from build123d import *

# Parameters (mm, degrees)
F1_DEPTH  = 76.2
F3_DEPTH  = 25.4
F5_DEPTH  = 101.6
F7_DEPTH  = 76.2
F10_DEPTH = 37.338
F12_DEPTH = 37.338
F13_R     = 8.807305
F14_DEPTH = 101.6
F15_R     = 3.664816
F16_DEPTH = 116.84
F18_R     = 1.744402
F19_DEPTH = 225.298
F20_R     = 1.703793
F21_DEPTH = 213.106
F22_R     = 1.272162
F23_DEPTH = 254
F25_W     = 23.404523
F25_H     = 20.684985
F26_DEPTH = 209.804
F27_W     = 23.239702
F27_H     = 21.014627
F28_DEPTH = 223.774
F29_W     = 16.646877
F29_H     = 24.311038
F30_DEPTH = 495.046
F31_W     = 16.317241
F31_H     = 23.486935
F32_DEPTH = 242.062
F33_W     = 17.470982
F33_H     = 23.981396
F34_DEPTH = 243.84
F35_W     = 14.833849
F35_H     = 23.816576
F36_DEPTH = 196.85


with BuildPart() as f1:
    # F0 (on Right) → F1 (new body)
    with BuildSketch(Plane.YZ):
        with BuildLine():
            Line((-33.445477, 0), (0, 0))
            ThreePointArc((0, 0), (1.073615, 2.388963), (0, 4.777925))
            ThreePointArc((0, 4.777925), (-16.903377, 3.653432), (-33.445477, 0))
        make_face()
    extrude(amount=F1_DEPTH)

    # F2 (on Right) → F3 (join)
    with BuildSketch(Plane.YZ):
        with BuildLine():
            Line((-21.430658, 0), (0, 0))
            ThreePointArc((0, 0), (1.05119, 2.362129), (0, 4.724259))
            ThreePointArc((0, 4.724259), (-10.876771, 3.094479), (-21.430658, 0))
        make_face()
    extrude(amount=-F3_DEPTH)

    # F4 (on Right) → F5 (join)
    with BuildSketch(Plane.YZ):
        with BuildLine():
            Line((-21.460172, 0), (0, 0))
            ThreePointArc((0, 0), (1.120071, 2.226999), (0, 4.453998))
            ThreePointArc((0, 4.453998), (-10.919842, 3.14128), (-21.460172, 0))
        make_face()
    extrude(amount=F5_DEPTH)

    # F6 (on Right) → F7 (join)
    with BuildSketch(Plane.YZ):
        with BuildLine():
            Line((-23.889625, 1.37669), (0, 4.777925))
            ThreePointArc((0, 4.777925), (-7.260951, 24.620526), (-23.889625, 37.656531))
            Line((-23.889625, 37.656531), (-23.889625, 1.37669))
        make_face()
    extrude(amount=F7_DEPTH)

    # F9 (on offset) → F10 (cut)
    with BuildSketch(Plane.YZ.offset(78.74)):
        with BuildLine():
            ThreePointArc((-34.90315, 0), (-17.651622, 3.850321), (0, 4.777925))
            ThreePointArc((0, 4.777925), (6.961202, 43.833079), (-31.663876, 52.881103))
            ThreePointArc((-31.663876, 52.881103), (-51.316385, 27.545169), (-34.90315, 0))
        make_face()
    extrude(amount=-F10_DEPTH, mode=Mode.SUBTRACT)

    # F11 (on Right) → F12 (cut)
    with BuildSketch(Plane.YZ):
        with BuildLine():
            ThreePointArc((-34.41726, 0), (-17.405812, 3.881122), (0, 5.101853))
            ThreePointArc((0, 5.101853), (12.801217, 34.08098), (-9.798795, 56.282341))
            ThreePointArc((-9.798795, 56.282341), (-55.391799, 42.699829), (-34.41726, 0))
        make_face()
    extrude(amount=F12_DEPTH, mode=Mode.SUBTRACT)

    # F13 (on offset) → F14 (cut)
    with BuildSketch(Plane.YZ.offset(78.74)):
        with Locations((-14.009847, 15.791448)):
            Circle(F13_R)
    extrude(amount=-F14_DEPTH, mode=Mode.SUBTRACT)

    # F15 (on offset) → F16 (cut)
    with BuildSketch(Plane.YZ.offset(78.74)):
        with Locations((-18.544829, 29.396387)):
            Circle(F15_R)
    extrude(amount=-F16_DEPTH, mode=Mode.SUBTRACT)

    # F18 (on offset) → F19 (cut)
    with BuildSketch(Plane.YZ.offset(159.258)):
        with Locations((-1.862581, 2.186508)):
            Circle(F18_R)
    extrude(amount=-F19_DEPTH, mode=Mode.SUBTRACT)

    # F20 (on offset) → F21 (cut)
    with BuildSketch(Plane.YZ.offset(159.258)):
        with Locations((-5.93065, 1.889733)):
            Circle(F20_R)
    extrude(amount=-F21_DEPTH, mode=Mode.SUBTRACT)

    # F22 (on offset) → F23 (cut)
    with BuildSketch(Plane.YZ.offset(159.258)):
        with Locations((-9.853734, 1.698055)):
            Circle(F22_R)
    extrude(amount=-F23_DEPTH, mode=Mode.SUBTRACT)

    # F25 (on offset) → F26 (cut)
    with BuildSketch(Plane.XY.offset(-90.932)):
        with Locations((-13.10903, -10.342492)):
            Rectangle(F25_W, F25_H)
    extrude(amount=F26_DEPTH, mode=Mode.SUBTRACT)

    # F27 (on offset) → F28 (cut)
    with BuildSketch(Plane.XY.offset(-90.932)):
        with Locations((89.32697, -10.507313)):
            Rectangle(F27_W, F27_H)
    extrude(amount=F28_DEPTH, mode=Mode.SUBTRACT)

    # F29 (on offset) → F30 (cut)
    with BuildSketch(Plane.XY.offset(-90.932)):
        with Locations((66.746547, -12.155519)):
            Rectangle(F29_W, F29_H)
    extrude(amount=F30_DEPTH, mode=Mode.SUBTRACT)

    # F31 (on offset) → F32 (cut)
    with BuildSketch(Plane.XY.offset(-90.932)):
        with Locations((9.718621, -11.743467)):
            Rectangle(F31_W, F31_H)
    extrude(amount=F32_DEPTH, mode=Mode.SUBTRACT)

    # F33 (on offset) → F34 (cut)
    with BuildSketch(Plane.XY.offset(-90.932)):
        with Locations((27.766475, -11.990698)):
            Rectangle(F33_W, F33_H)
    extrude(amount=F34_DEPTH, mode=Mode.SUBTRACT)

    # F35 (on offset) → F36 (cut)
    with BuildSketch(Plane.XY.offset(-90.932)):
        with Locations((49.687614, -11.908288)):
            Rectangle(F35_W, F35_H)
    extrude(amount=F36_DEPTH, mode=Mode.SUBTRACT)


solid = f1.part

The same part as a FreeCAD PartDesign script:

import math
import FreeCAD as App
import Part
import Sketcher
from FreeCAD import Vector
Q = App.Units.Quantity


def add_polygon(sketch, points):
    """Adds a closed chain of lines whose ends are joined by coincident constraints."""
    first, n = sketch.GeometryCount, len(points)
    for a, b in zip(points, points[1:] + points[:1]):
        sketch.addGeometry(Part.LineSegment(App.Vector(*a, 0), App.Vector(*b, 0)), False)
    for i in range(n):
        sketch.addConstraint(Sketcher.Constraint("Coincident", first + i, 2, first + (i + 1) % n, 1))

doc = App.newDocument("Part")
body = doc.addObject("PartDesign::Body", "Body")

# Sketch on YZ plane
sketch1 = body.newObject("Sketcher::SketchObject", "Sketch")
sketch1.AttachmentSupport = (doc.getObject("YZ_Plane"), [""])
sketch1.MapMode = "FlatFace"
sketch1.addGeometry([
    Part.LineSegment(Vector(-33.4, 0, 0), Vector(0, 0, 0)),
    Part.ArcOfCircle(Part.Circle(Vector(-2.1, 2.4, 0), Vector(0, 0, 1), 3.2), math.radians(-48), math.radians(48)),
    Part.ArcOfCircle(Part.Circle(Vector(-1, -107.6, 0), Vector(0, 0, 1), 112.3), math.radians(89.48), math.radians(106.78)),
], False)
sketch1.addConstraint([
    Sketcher.Constraint("Coincident", 0, 2, 1, 1),
    Sketcher.Constraint("Coincident", 1, 2, 2, 1),
    Sketcher.Constraint("Coincident", 2, 2, 0, 1),
    Sketcher.Constraint("Horizontal", 0),
    Sketcher.Constraint("Coincident", 0, 2, -1, 1),
    Sketcher.Constraint("PointOnObject", 1, 2, -2),
    Sketcher.Constraint("Radius", 1, Q("3.194716 mm")),
    Sketcher.Constraint("Radius", 2, Q("112.341285 mm")),
    Sketcher.Constraint("DistanceX", 1, 3, -1, 1, Q("2.121101 mm")),
    Sketcher.Constraint("DistanceX", 0, 1, 0, 2, Q("33.445477 mm")),
])
pad1 = body.newObject("PartDesign::Pad", "Pad")
pad1.Profile = sketch1
pad1.Length = Q("3 in")

# Sketch on YZ plane
sketch2 = body.newObject("Sketcher::SketchObject", "Sketch001")
sketch2.AttachmentSupport = (doc.getObject("YZ_Plane"), [""])
sketch2.MapMode = "FlatFace"
sketch2.addGeometry([
    Part.LineSegment(Vector(-21.4, 0, 0), Vector(0, 0, 0)),
    Part.ArcOfCircle(Part.Circle(Vector(-2.1, 2.4, 0), Vector(0, 0, 1), 3.2), math.radians(-48), math.radians(48)),
    Part.ArcOfCircle(Part.Circle(Vector(6.5, -75.7, 0), Vector(0, 0, 1), 80.6), math.radians(94.61), math.radians(110.25)),
], False)
sketch2.addConstraint([
    Sketcher.Constraint("Coincident", 0, 2, 1, 1),
    Sketcher.Constraint("Coincident", 1, 2, 2, 1),
    Sketcher.Constraint("Coincident", 2, 2, 0, 1),
    Sketcher.Constraint("Horizontal", 0),
    Sketcher.Constraint("Coincident", 0, 2, -1, 1),
    Sketcher.Constraint("PointOnObject", 1, 2, -2),
    Sketcher.Constraint("Radius", 2, Q("80.647439 mm")),
    Sketcher.Constraint("Radius", 1, Q("3.179566 mm")),
    Sketcher.Constraint("DistanceX", 0, 1, 0, 2, Q("21.430658 mm")),
    Sketcher.Constraint("DistanceY", -1, 1, 1, 3, Q("2.362129 mm")),
])
pad2 = body.newObject("PartDesign::Pad", "Pad001")
pad2.Profile = sketch2
pad2.Length = Q("1 in")
pad2.Reversed = True

# Sketch on YZ plane
sketch3 = body.newObject("Sketcher::SketchObject", "Sketch002")
sketch3.AttachmentSupport = (doc.getObject("YZ_Plane"), [""])
sketch3.MapMode = "FlatFace"
sketch3.addGeometry([
    Part.LineSegment(Vector(-21.5, 0, 0), Vector(0, 0, 0)),
    Part.ArcOfCircle(Part.Circle(Vector(-1.7, 2.2, 0), Vector(0, 0, 1), 2.8), math.radians(-53), math.radians(53)),
    Part.ArcOfCircle(Part.Circle(Vector(2.2, -60.3, 0), Vector(0, 0, 1), 64.8), math.radians(91.98), math.radians(111.47)),
], False)
sketch3.addConstraint([
    Sketcher.Constraint("Coincident", 0, 2, 1, 1),
    Sketcher.Constraint("Coincident", 1, 2, 2, 1),
    Sketcher.Constraint("Coincident", 2, 2, 0, 1),
    Sketcher.Constraint("Horizontal", 0),
    Sketcher.Constraint("Coincident", 0, 2, -1, 1),
    Sketcher.Constraint("PointOnObject", 1, 2, -2),
    Sketcher.Constraint("Radius", 1, Q("2.773969 mm")),
    Sketcher.Constraint("Radius", 2, Q("64.773356 mm")),
    Sketcher.Constraint("DistanceX", 0, 1, 0, 2, Q("21.460172 mm")),
    Sketcher.Constraint("DistanceY", -1, 1, 1, 3, Q("2.226999 mm")),
])
pad3 = body.newObject("PartDesign::Pad", "Pad002")
pad3.Profile = sketch3
pad3.Length = Q("4 in")

# Sketch on YZ plane
sketch4 = body.newObject("Sketcher::SketchObject", "Sketch003")
sketch4.AttachmentSupport = (doc.getObject("YZ_Plane"), [""])
sketch4.MapMode = "FlatFace"
sketch4.addGeometry([
    Part.LineSegment(Vector(-24, 1, 0), Vector(0, 5, 0)),
    Part.ArcOfCircle(Part.Circle(Vector(-38, 2, 0), Vector(0, 0, 1), 39), math.radians(4), math.radians(68)),
    Part.LineSegment(Vector(-24, 38, 0), Vector(-24, 1, 0)),
], False)
sketch4.addConstraint([
    Sketcher.Constraint("Coincident", 0, 2, 1, 1),
    Sketcher.Constraint("Coincident", 1, 2, 2, 1),
    Sketcher.Constraint("Coincident", 2, 2, 0, 1),
    Sketcher.Constraint("Vertical", 2),
    Sketcher.Constraint("PointOnObject", 0, 2, -2),
    Sketcher.Constraint("Radius", 1, Q("38.555345 mm")),
    Sketcher.Constraint("DistanceY", 2, 2, 2, 1, Q("36.279841 mm")),
    Sketcher.Constraint("DistanceY", -1, 1, 1, 3, Q("1.957071 mm")),
    Sketcher.Constraint("DistanceY", -1, 1, 1, 2, Q("37.656531 mm")),
    Sketcher.Constraint("Distance", 0, Q("24.130532 mm")),
])
pad4 = body.newObject("PartDesign::Pad", "Pad003")
pad4.Profile = sketch4
pad4.Length = Q("3 in")

# Sketch on YZ plane
sketch5 = body.newObject("Sketcher::SketchObject", "Sketch004")
sketch5.AttachmentSupport = (doc.getObject("YZ_Plane"), [""])
sketch5.MapMode = "FlatFace"
sketch5.AttachmentOffset = App.Placement(Vector(0, 0, 3.1 * 25.4), App.Rotation())
sketch5.addGeometry([
    Part.ArcOfCircle(Part.Circle(Vector(-3, -101, 0), Vector(0, 0, 1), 106), math.radians(88.22), math.radians(107.37)),
    Part.ArcOfCircle(Part.Circle(Vector(-17, 28, 0), Vector(0, 0, 1), 29), math.radians(-54), math.radians(120)),
    Part.ArcOfCircle(Part.Circle(Vector(-23, 26, 0), Vector(0, 0, 1), 28), math.radians(108), math.radians(245)),
], False)
sketch5.addConstraint([
    Sketcher.Constraint("Coincident", 0, 1, 1, 1),
    Sketcher.Constraint("Coincident", 1, 2, 2, 1),
    Sketcher.Constraint("Coincident", 2, 2, 0, 2),
    Sketcher.Constraint("PointOnObject", 0, 1, -2),
    Sketcher.Constraint("PointOnObject", 2, 2, -1),
    Sketcher.Constraint("Radius", 2, Q("28.453791 mm")),
    Sketcher.Constraint("Radius", 0, Q("105.912846 mm")),
    Sketcher.Constraint("Radius", 1, Q("28.836195 mm")),
    Sketcher.Constraint("DistanceY", 0, 3, -1, 1, Q("101.0839 mm")),
    Sketcher.Constraint("DistanceX", 2, 3, 1, 3, Q("5.7907 mm")),
    Sketcher.Constraint("DistanceX", 1, 2, 0, 3, Q("28.376798 mm")),
    Sketcher.Constraint("DistanceY", -1, 1, 2, 3, Q("25.805471 mm")),
])
pocket1 = body.newObject("PartDesign::Pocket", "Pocket")
pocket1.Profile = sketch5
pocket1.Length = Q("1.47 in")

# Sketch on YZ plane
sketch6 = body.newObject("Sketcher::SketchObject", "Sketch005")
sketch6.AttachmentSupport = (doc.getObject("YZ_Plane"), [""])
sketch6.MapMode = "FlatFace"
sketch6.addGeometry([
    Part.ArcOfCircle(Part.Circle(Vector(-1, -108, 0), Vector(0, 0, 1), 113), math.radians(89.59), math.radians(107.27)),
    Part.ArcOfCircle(Part.Circle(Vector(-15, 29, 0), Vector(0, 0, 1), 28), math.radians(-59), math.radians(80)),
    Part.ArcOfCircle(Part.Circle(Vector(-27, 30, 0), Vector(0, 0, 1), 31), math.radians(57), math.radians(256)),
], False)
sketch6.addConstraint([
    Sketcher.Constraint("Coincident", 0, 1, 1, 1),
    Sketcher.Constraint("Coincident", 1, 2, 2, 1),
    Sketcher.Constraint("Coincident", 2, 2, 0, 2),
    Sketcher.Constraint("PointOnObject", 0, 1, -2),
    Sketcher.Constraint("PointOnObject", 2, 2, -1),
    Sketcher.Constraint("Radius", 0, Q("113.202019 mm")),
    Sketcher.Constraint("Radius", 2, Q("31.149142 mm")),
    Sketcher.Constraint("Radius", 1, Q("27.845275 mm")),
    Sketcher.Constraint("DistanceY", 0, 3, -1, 1, Q("108.097292 mm")),
    Sketcher.Constraint("DistanceY", -1, 1, 2, 3, Q("30.216819 mm")),
    Sketcher.Constraint("DistanceY", -1, 1, 1, 2, Q("56.282341 mm")),
    Sketcher.Constraint("DistanceX", 2, 2, -1, 1, Q("34.41726 mm")),
])
pocket2 = body.newObject("PartDesign::Pocket", "Pocket001")
pocket2.Profile = sketch6
pocket2.Length = Q("1.47 in")
pocket2.Reversed = True

# Sketch on YZ plane
sketch7 = body.newObject("Sketcher::SketchObject", "Sketch006")
sketch7.AttachmentSupport = (doc.getObject("YZ_Plane"), [""])
sketch7.MapMode = "FlatFace"
sketch7.AttachmentOffset = App.Placement(Vector(0, 0, 3.1 * 25.4), App.Rotation())
sketch7.addGeometry(Part.Circle(Vector(-14, 16, 0), Vector(0, 0, 1), 9), False)
sketch7.addConstraint([
    Sketcher.Constraint("Diameter", 0, Q("17.61461 mm")),
    Sketcher.Constraint("DistanceY", -1, 1, 0, 3, Q("15.791448 mm")),
    Sketcher.Constraint("DistanceX", 0, 3, -1, 1, Q("14.009847 mm")),
])
pocket3 = body.newObject("PartDesign::Pocket", "Pocket002")
pocket3.Profile = sketch7
pocket3.Length = Q("4 in")

# Sketch on YZ plane
sketch8 = body.newObject("Sketcher::SketchObject", "Sketch007")
sketch8.AttachmentSupport = (doc.getObject("YZ_Plane"), [""])
sketch8.MapMode = "FlatFace"
sketch8.AttachmentOffset = App.Placement(Vector(0, 0, 3.1 * 25.4), App.Rotation())
sketch8.addGeometry(Part.Circle(Vector(-18.5, 29.4, 0), Vector(0, 0, 1), 3.7), False)
sketch8.addConstraint([
    Sketcher.Constraint("Diameter", 0, Q("7.329632 mm")),
    Sketcher.Constraint("DistanceX", 0, 3, -1, 1, Q("18.544829 mm")),
    Sketcher.Constraint("DistanceY", -1, 1, 0, 3, Q("29.396387 mm")),
])
pocket4 = body.newObject("PartDesign::Pocket", "Pocket003")
pocket4.Profile = sketch8
pocket4.Length = Q("4.6 in")

# Sketch on YZ plane
sketch9 = body.newObject("Sketcher::SketchObject", "Sketch008")
sketch9.AttachmentSupport = (doc.getObject("YZ_Plane"), [""])
sketch9.MapMode = "FlatFace"
sketch9.AttachmentOffset = App.Placement(Vector(0, 0, 6.27 * 25.4), App.Rotation())
sketch9.addGeometry(Part.Circle(Vector(-1.9, 2.2, 0), Vector(0, 0, 1), 1.7), False)
sketch9.addConstraint([
    Sketcher.Constraint("Diameter", 0, Q("3.488804 mm")),
    Sketcher.Constraint("DistanceX", 0, 3, -1, 1, Q("1.862581 mm")),
    Sketcher.Constraint("DistanceY", -1, 1, 0, 3, Q("2.186508 mm")),
])
pocket5 = body.newObject("PartDesign::Pocket", "Pocket004")
pocket5.Profile = sketch9
pocket5.Length = Q("8.87 in")

# Sketch on YZ plane
sketch10 = body.newObject("Sketcher::SketchObject", "Sketch009")
sketch10.AttachmentSupport = (doc.getObject("YZ_Plane"), [""])
sketch10.MapMode = "FlatFace"
sketch10.AttachmentOffset = App.Placement(Vector(0, 0, 6.27 * 25.4), App.Rotation())
sketch10.addGeometry(Part.Circle(Vector(-5.9, 1.9, 0), Vector(0, 0, 1), 1.7), False)
sketch10.addConstraint([
    Sketcher.Constraint("Diameter", 0, Q("3.407586 mm")),
    Sketcher.Constraint("DistanceX", 0, 3, -1, 1, Q("5.93065 mm")),
    Sketcher.Constraint("DistanceY", -1, 1, 0, 3, Q("1.889733 mm")),
])
pocket6 = body.newObject("PartDesign::Pocket", "Pocket005")
pocket6.Profile = sketch10
pocket6.Length = Q("8.39 in")

# Sketch on YZ plane
sketch11 = body.newObject("Sketcher::SketchObject", "Sketch010")
sketch11.AttachmentSupport = (doc.getObject("YZ_Plane"), [""])
sketch11.MapMode = "FlatFace"
sketch11.AttachmentOffset = App.Placement(Vector(0, 0, 6.27 * 25.4), App.Rotation())
sketch11.addGeometry(Part.Circle(Vector(-9.9, 1.7, 0), Vector(0, 0, 1), 1.3), False)
sketch11.addConstraint([
    Sketcher.Constraint("Diameter", 0, Q("2.544324 mm")),
    Sketcher.Constraint("DistanceX", 0, 3, -1, 1, Q("9.853734 mm")),
    Sketcher.Constraint("DistanceY", -1, 1, 0, 3, Q("1.698055 mm")),
])
pocket7 = body.newObject("PartDesign::Pocket", "Pocket006")
pocket7.Profile = sketch11
pocket7.Length = Q("10 in")

# Sketch on XY plane
sketch12 = body.newObject("Sketcher::SketchObject", "Sketch011")
sketch12.AttachmentSupport = (doc.getObject("XY_Plane"), [""])
sketch12.MapMode = "FlatFace"
sketch12.AttachmentOffset = App.Placement(Vector(0, 0, -3.58 * 25.4), App.Rotation())
add_polygon(sketch12, [(-25, 0), (-25, -21), (-1, -21), (-1, 0)])  # lines 0-3
sketch12.addConstraint([
    Sketcher.Constraint("Vertical", 0),
    Sketcher.Constraint("Horizontal", 1),
    Sketcher.Constraint("Vertical", 2),
    Sketcher.Constraint("Horizontal", 3),
    Sketcher.Constraint("PointOnObject", 2, 2, -1),
    Sketcher.Constraint("DistanceX", 1, 1, 1, 2, Q("23.404523 mm")),
    Sketcher.Constraint("DistanceY", 0, 2, 0, 1, Q("20.684985 mm")),
    Sketcher.Constraint("DistanceX", 0, 2, -1, 1, Q("24.811291 mm")),
])
pocket8 = body.newObject("PartDesign::Pocket", "Pocket007")
pocket8.Profile = sketch12
pocket8.Length = Q("8.26 in")
pocket8.Reversed = True

# Sketch on XY plane
sketch13 = body.newObject("Sketcher::SketchObject", "Sketch012")
sketch13.AttachmentSupport = (doc.getObject("XY_Plane"), [""])
sketch13.MapMode = "FlatFace"
sketch13.AttachmentOffset = App.Placement(Vector(0, 0, -3.58 * 25.4), App.Rotation())
add_polygon(sketch13, [(78, 0), (78, -21), (101, -21), (101, 0)])  # lines 0-3
sketch13.addConstraint([
    Sketcher.Constraint("Vertical", 0),
    Sketcher.Constraint("Horizontal", 1),
    Sketcher.Constraint("Vertical", 2),
    Sketcher.Constraint("Horizontal", 3),
    Sketcher.Constraint("PointOnObject", 2, 2, -1),
    Sketcher.Constraint("DistanceX", 1, 1, 1, 2, Q("23.239702 mm")),
    Sketcher.Constraint("DistanceY", 0, 2, 0, 1, Q("21.014627 mm")),
    Sketcher.Constraint("DistanceX", -1, 1, 0, 2, Q("77.707119 mm")),
])
pocket9 = body.newObject("PartDesign::Pocket", "Pocket008")
pocket9.Profile = sketch13
pocket9.Length = Q("8.81 in")
pocket9.Reversed = True

# Sketch on XY plane
sketch14 = body.newObject("Sketcher::SketchObject", "Sketch013")
sketch14.AttachmentSupport = (doc.getObject("XY_Plane"), [""])
sketch14.MapMode = "FlatFace"
sketch14.AttachmentOffset = App.Placement(Vector(0, 0, -3.58 * 25.4), App.Rotation())
add_polygon(sketch14, [(58, 0), (58, -24), (75, -24), (75, 0)])  # lines 0-3
sketch14.addConstraint([
    Sketcher.Constraint("Vertical", 0),
    Sketcher.Constraint("Horizontal", 1),
    Sketcher.Constraint("Vertical", 2),
    Sketcher.Constraint("Horizontal", 3),
    Sketcher.Constraint("PointOnObject", 2, 2, -1),
    Sketcher.Constraint("DistanceY", 0, 2, 0, 1, Q("24.311038 mm")),
    Sketcher.Constraint("DistanceX", 1, 1, 1, 2, Q("16.646877 mm")),
    Sketcher.Constraint("DistanceX", -1, 1, 0, 2, Q("58.423108 mm")),
])
pocket10 = body.newObject("PartDesign::Pocket", "Pocket009")
pocket10.Profile = sketch14
pocket10.Length = Q("19.49 in")
pocket10.Reversed = True

# Sketch on XY plane
sketch15 = body.newObject("Sketcher::SketchObject", "Sketch014")
sketch15.AttachmentSupport = (doc.getObject("XY_Plane"), [""])
sketch15.MapMode = "FlatFace"
sketch15.AttachmentOffset = App.Placement(Vector(0, 0, -3.58 * 25.4), App.Rotation())
add_polygon(sketch15, [(2, 0), (2, -23), (18, -23), (18, 0)])  # lines 0-3
sketch15.addConstraint([
    Sketcher.Constraint("Vertical", 0),
    Sketcher.Constraint("Horizontal", 1),
    Sketcher.Constraint("Vertical", 2),
    Sketcher.Constraint("Horizontal", 3),
    Sketcher.Constraint("PointOnObject", 2, 2, -1),
    Sketcher.Constraint("DistanceX", 1, 1, 1, 2, Q("16.317241 mm")),
    Sketcher.Constraint("DistanceX", -1, 1, 0, 2, Q("1.56 mm")),
    Sketcher.Constraint("DistanceY", 0, 2, 0, 1, Q("23.486935 mm")),
])
pocket11 = body.newObject("PartDesign::Pocket", "Pocket010")
pocket11.Profile = sketch15
pocket11.Length = Q("9.53 in")
pocket11.Reversed = True

# Sketch on XY plane
sketch16 = body.newObject("Sketcher::SketchObject", "Sketch015")
sketch16.AttachmentSupport = (doc.getObject("XY_Plane"), [""])
sketch16.MapMode = "FlatFace"
sketch16.AttachmentOffset = App.Placement(Vector(0, 0, -3.58 * 25.4), App.Rotation())
add_polygon(sketch16, [(19, 0), (19, -24), (37, -24), (37, 0)])  # lines 0-3
sketch16.addConstraint([
    Sketcher.Constraint("Vertical", 0),
    Sketcher.Constraint("Horizontal", 1),
    Sketcher.Constraint("Vertical", 2),
    Sketcher.Constraint("Horizontal", 3),
    Sketcher.Constraint("PointOnObject", 2, 2, -1),
    Sketcher.Constraint("DistanceX", 1, 1, 1, 2, Q("17.470982 mm")),
    Sketcher.Constraint("DistanceY", 0, 2, 0, 1, Q("23.981396 mm")),
    Sketcher.Constraint("DistanceX", -1, 1, 0, 2, Q("19.030984 mm")),
])
pocket12 = body.newObject("PartDesign::Pocket", "Pocket011")
pocket12.Profile = sketch16
pocket12.Length = Q("9.6 in")
pocket12.Reversed = True

# Sketch on XY plane
sketch17 = body.newObject("Sketcher::SketchObject", "Sketch016")
sketch17.AttachmentSupport = (doc.getObject("XY_Plane"), [""])
sketch17.MapMode = "FlatFace"
sketch17.AttachmentOffset = App.Placement(Vector(0, 0, -3.58 * 25.4), App.Rotation())
add_polygon(sketch17, [(42, 0), (42, -24), (57, -24), (57, 0)])  # lines 0-3
sketch17.addConstraint([
    Sketcher.Constraint("Vertical", 0),
    Sketcher.Constraint("Horizontal", 1),
    Sketcher.Constraint("Vertical", 2),
    Sketcher.Constraint("Horizontal", 3),
    Sketcher.Constraint("PointOnObject", 2, 2, -1),
    Sketcher.Constraint("DistanceX", 1, 1, 1, 2, Q("14.833849 mm")),
    Sketcher.Constraint("DistanceY", 0, 2, 0, 1, Q("23.816576 mm")),
    Sketcher.Constraint("DistanceX", -1, 1, 0, 2, Q("42.27069 mm")),
])
pocket13 = body.newObject("PartDesign::Pocket", "Pocket012")
pocket13.Profile = sketch17
pocket13.Length = Q("7.75 in")
pocket13.Reversed = True

doc.recompute()
